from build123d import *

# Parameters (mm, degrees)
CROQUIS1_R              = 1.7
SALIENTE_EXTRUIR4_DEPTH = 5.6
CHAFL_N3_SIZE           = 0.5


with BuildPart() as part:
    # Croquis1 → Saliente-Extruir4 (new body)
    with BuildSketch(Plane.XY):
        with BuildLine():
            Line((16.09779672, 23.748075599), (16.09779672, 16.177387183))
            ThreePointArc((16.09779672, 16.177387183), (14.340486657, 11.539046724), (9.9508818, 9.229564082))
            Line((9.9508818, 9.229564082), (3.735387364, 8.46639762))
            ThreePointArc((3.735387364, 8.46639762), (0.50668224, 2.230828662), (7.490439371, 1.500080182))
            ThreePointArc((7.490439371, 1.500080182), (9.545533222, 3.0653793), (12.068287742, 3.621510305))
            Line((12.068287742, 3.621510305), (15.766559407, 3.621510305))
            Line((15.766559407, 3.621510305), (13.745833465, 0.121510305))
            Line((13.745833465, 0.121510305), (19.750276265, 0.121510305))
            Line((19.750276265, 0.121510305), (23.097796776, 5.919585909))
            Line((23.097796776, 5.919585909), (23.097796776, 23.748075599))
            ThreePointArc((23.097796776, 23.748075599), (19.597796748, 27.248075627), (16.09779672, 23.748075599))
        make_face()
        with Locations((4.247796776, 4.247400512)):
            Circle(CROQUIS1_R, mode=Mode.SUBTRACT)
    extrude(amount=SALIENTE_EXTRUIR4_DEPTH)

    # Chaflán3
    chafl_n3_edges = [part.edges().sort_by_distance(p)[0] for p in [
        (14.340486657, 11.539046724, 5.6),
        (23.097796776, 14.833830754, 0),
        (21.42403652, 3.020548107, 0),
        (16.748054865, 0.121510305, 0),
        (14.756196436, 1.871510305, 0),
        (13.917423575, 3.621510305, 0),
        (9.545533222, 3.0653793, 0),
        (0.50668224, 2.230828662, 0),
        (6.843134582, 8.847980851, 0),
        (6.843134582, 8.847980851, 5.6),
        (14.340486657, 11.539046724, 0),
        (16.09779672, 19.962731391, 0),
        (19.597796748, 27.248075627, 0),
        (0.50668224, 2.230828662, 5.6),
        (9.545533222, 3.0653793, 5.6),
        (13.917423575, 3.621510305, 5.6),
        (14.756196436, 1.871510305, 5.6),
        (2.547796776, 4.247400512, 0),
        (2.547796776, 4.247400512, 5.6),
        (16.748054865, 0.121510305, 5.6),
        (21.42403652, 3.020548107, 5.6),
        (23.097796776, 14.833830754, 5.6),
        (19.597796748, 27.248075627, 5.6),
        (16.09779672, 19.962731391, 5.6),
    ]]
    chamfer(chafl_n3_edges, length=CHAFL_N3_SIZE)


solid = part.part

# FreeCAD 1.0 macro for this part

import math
import FreeCAD as App
import Part
import Sketcher
from FreeCAD import Vector
Q = App.Units.Quantity


def edges_at(feature, points):
    """Names of the edges that pass closest to the given points."""
    edges = feature.Shape.Edges
    near = lambda p: min(range(len(edges)), key=lambda i: edges[i].distToShape(Part.Vertex(*p))[0])
    return sorted({f"Edge{near(p) + 1}" for p in points})

doc = App.newDocument("Part")
body = doc.addObject("PartDesign::Body", "Body")

sketch1 = doc.addObject("Sketcher::SketchObject", "Sketch")
body.addObject(sketch1)
sketch1.AttachmentSupport = (doc.XY_Plane, [""])
sketch1.MapMode = "FlatFace"
sketch1.addGeometry([
    Part.LineSegment(Vector(16.097797, 23.748076, 0), Vector(16.097797, 16.177387, 0)),
    Part.ArcOfCircle(Part.Circle(Vector(9.097797, 16.177387, 0), Vector(0, 0, 1), 7), math.radians(-83.000003), math.radians(0)),
    Part.LineSegment(Vector(9.950882, 9.229564, 0), Vector(3.735387, 8.466398, 0)),
    Part.ArcOfCircle(Part.Circle(Vector(4.247797, 4.247401, 0), Vector(0, 0, 1), 4.25), math.radians(96.924822), math.radians(319.72715)),
    Part.ArcOfCircle(Part.Circle(Vector(12.068288, -2.37849, 0), Vector(0, 0, 1), 6), math.radians(90), math.radians(139.72715)),
    Part.LineSegment(Vector(12.068288, 3.62151, 0), Vector(15.766559, 3.62151, 0)),
    Part.LineSegment(Vector(15.766559, 3.62151, 0), Vector(13.745833, 0.12151, 0)),
    Part.LineSegment(Vector(13.745833, 0.12151, 0), Vector(19.750276, 0.12151, 0)),
    Part.LineSegment(Vector(19.750276, 0.12151, 0), Vector(23.097797, 5.919586, 0)),
    Part.LineSegment(Vector(23.097797, 5.919586, 0), Vector(23.097797, 23.748076, 0)),
    Part.ArcOfCircle(Part.Circle(Vector(19.597797, 23.748076, 0), Vector(0, 0, 1), 3.5), math.radians(0), math.radians(180)),
    Part.Circle(Vector(4.247797, 4.247401, 0), Vector(0, 0, 1), 1.7),
], False)
sketch1.addConstraint([
    Sketcher.Constraint("Tangent", 0, 2, 1, 2),
    Sketcher.Constraint("Tangent", 1, 1, 2, 1),
    Sketcher.Constraint("Coincident", 2, 2, 3, 1),
    Sketcher.Constraint("Tangent", 3, 2, 4, 2),
    Sketcher.Constraint("Tangent", 4, 1, 5, 1),
    Sketcher.Constraint("Coincident", 5, 2, 6, 1),
    Sketcher.Constraint("Coincident", 6, 2, 7, 1),
    Sketcher.Constraint("Coincident", 7, 2, 8, 1),
    Sketcher.Constraint("Coincident", 8, 2, 9, 1),
    Sketcher.Constraint("Tangent", 9, 2, 10, 1),
    Sketcher.Constraint("Tangent", 10, 2, 0, 1),
    Sketcher.Constraint("Vertical", 0),
    Sketcher.Constraint("Horizontal", 5),
    Sketcher.Constraint("Horizontal", 7),
    Sketcher.Constraint("Vertical", 9),
    Sketcher.Constraint("Coincident", 11, 3, 3, 3),
    Sketcher.Constraint("Parallel", 6, 8),
    Sketcher.Constraint("Radius", 1, Q("7 mm")),
    Sketcher.Constraint("Radius", 4, Q("6 mm")),
    Sketcher.Constraint("Diameter", 11, Q("3.4 mm")),
    Sketcher.Constraint("Radius", 10, Q("3.5 mm")),
    Sketcher.Constraint("Angle", 2, Q("-173.000003 deg")),
    Sketcher.Constraint("Angle", 6, Q("-120 deg")),
    Sketcher.Constraint("Radius", 3, Q("4.25 mm")),
    Sketcher.Constraint("DistanceY", 4, 3, 6, 2, Q("2.5 mm")),
    Sketcher.Constraint("DistanceX", 3, 3, 1, 3, Q("4.85 mm")),
    Sketcher.Constraint("DistanceX", 5, 1, 5, 2, Q("3.698272 mm")),
    Sketcher.Constraint("DistanceY", 0, 2, 0, 1, Q("7.570688 mm")),
    Sketcher.Constraint("DistanceY", 9, 1, 9, 2, Q("17.82849 mm")),
    Sketcher.Constraint("DistanceY", -1, 1, 3, 3, Q("4.247401 mm")),
    Sketcher.Constraint("DistanceX", 2, 2, 4, 3, Q("8.3329 mm")),
    Sketcher.Constraint("Distance", 2, Q("6.262172 mm")),
    Sketcher.Constraint("DistanceX", -1, 1, 1, 1, Q("9.950882 mm")),
])
pad1 = doc.addObject("PartDesign::Pad", "Pad")
body.addObject(pad1)
pad1.Profile = sketch1
pad1.Length = 5.6
doc.recompute()

chamfer = doc.addObject("PartDesign::Chamfer", "Chamfer")
body.addObject(chamfer)
chamfer.Base = (pad1, edges_at(pad1, [
    (14.34, 11.539, 5.6),
    (23.098, 14.834, 0),
    (21.424, 3.021, 0),
    (16.748, 0.122, 0),
    (14.756, 1.872, 0),
    (13.917, 3.622, 0),
    (9.546, 3.065, 0),
    (0.507, 2.231, 0),
    (6.843, 8.848, 0),
    (6.843, 8.848, 5.6),
    (14.34, 11.539, 0),
    (16.098, 19.963, 0),
    (19.598, 27.248, 0),
    (0.507, 2.231, 5.6),
    (9.546, 3.065, 5.6),
    (13.917, 3.622, 5.6),
    (14.756, 1.872, 5.6),
    (2.548, 4.247, 0),
    (2.548, 4.247, 5.6),
    (16.748, 0.122, 5.6),
    (21.424, 3.021, 5.6),
    (23.098, 14.834, 5.6),
    (19.598, 27.248, 5.6),
    (16.098, 19.963, 5.6),
]))
chamfer.Size = 0.5

doc.recompute()
